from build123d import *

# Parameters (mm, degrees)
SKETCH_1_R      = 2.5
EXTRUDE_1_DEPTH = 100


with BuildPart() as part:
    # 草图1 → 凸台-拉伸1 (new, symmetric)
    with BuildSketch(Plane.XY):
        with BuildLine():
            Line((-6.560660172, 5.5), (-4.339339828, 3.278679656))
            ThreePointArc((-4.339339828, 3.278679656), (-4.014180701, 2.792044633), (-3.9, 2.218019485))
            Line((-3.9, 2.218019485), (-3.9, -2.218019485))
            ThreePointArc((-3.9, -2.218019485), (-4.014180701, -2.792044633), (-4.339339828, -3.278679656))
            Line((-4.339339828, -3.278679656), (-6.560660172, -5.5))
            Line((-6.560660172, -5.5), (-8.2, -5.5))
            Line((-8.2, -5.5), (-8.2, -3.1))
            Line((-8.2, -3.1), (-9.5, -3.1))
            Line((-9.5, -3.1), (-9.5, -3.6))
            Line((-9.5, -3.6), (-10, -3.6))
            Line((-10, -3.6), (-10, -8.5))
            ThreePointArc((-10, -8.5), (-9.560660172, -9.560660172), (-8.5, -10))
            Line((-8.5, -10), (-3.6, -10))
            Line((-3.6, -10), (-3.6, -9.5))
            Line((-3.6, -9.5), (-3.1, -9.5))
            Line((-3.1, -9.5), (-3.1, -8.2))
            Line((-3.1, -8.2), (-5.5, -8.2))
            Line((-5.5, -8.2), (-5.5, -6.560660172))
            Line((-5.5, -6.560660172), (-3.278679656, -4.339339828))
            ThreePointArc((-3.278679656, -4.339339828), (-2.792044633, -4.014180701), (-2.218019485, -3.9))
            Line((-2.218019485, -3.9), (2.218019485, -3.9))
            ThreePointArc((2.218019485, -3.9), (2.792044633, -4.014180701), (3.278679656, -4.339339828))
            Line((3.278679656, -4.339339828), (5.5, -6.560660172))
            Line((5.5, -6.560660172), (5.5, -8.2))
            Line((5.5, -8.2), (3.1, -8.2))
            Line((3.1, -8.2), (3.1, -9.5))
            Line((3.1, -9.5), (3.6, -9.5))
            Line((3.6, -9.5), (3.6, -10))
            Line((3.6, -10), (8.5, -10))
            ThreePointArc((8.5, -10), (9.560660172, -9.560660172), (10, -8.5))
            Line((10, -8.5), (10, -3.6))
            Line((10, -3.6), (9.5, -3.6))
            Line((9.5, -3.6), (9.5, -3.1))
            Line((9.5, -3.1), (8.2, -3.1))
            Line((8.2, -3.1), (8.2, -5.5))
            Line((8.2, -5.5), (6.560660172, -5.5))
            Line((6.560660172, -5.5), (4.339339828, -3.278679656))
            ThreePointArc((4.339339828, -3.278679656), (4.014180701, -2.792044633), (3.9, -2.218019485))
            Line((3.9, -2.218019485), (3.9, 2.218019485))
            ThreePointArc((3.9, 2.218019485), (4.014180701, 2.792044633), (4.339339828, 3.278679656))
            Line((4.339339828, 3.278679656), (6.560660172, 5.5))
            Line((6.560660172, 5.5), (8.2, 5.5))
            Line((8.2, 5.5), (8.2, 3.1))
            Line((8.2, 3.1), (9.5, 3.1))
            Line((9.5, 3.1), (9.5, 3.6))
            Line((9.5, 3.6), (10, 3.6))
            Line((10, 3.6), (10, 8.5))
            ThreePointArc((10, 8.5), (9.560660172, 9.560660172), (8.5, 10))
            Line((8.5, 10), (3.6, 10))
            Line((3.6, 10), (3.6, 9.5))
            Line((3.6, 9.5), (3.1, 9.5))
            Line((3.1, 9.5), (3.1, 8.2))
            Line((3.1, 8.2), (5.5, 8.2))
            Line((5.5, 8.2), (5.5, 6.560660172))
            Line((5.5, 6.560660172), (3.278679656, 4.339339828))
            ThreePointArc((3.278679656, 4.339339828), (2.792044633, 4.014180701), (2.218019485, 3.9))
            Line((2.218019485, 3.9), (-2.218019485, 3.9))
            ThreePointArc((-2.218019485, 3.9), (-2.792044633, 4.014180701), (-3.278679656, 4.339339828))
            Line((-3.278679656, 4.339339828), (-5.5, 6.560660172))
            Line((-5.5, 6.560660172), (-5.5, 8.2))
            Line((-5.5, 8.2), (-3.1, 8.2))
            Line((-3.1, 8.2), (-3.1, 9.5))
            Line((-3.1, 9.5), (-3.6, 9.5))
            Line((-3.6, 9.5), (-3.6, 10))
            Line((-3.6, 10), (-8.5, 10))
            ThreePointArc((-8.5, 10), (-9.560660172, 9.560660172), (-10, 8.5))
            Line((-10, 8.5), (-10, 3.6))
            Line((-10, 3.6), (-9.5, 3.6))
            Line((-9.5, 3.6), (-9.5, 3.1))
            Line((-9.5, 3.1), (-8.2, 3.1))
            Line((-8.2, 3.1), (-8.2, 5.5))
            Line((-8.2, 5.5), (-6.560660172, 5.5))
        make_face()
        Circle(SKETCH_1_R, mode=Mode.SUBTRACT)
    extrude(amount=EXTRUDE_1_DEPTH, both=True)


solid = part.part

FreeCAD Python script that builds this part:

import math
import FreeCAD as App
import Part
import Sketcher
Q = App.Units.Quantity

doc = App.newDocument("Part")
body = doc.addObject("PartDesign::Body", "Body")

sketch1 = body.newObject("Sketcher::SketchObject", "Sketch")
sketch1.AttachmentSupport = (doc.getObject("XY_Plane"), [""])
sketch1.MapMode = "FlatFace"
sketch1.addGeometry([
    Part.LineSegment(App.Vector(-6.6, 5.5, 0), App.Vector(-4.3, 3.3, 0)),
    Part.ArcOfCircle(Part.Circle(App.Vector(-5.4, 2.2, 0), App.Vector(0, 0, 1), 1.5), math.radians(0), math.radians(45)),
    Part.LineSegment(App.Vector(-3.9, 2.2, 0), App.Vector(-3.9, -2.2, 0)),
    Part.ArcOfCircle(Part.Circle(App.Vector(-5.4, -2.2, 0), App.Vector(0, 0, 1), 1.5), math.radians(-45), math.radians(0)),
    Part.LineSegment(App.Vector(-4.3, -3.3, 0), App.Vector(-6.6, -5.5, 0)),
    Part.LineSegment(App.Vector(-6.6, -5.5, 0), App.Vector(-8.2, -5.5, 0)),
    Part.LineSegment(App.Vector(-8.2, -5.5, 0), App.Vector(-8.2, -3.1, 0)),
    Part.LineSegment(App.Vector(-8.2, -3.1, 0), App.Vector(-9.5, -3.1, 0)),
    Part.LineSegment(App.Vector(-9.5, -3.1, 0), App.Vector(-9.5, -3.6, 0)),
    Part.LineSegment(App.Vector(-9.5, -3.6, 0), App.Vector(-10, -3.6, 0)),
    Part.LineSegment(App.Vector(-10, -3.6, 0), App.Vector(-10, -8.5, 0)),
    Part.ArcOfCircle(Part.Circle(App.Vector(-8.5, -8.5, 0), App.Vector(0, 0, 1), 1.5), math.radians(180), math.radians(270)),
    Part.LineSegment(App.Vector(-8.5, -10, 0), App.Vector(-3.6, -10, 0)),
    Part.LineSegment(App.Vector(-3.6, -10, 0), App.Vector(-3.6, -9.5, 0)),
    Part.LineSegment(App.Vector(-3.6, -9.5, 0), App.Vector(-3.1, -9.5, 0)),
    Part.LineSegment(App.Vector(-3.1, -9.5, 0), App.Vector(-3.1, -8.2, 0)),
    Part.LineSegment(App.Vector(-3.1, -8.2, 0), App.Vector(-5.5, -8.2, 0)),
    Part.LineSegment(App.Vector(-5.5, -8.2, 0), App.Vector(-5.5, -6.6, 0)),
    Part.LineSegment(App.Vector(-5.5, -6.6, 0), App.Vector(-3.3, -4.3, 0)),
    Part.ArcOfCircle(Part.Circle(App.Vector(-2.2, -5.4, 0), App.Vector(0, 0, 1), 1.5), math.radians(90), math.radians(135)),
    Part.LineSegment(App.Vector(-2.2, -3.9, 0), App.Vector(2.2, -3.9, 0)),
    Part.ArcOfCircle(Part.Circle(App.Vector(2.2, -5.4, 0), App.Vector(0, 0, 1), 1.5), math.radians(45), math.radians(90)),
    Part.LineSegment(App.Vector(3.3, -4.3, 0), App.Vector(5.5, -6.6, 0)),
    Part.LineSegment(App.Vector(5.5, -6.6, 0), App.Vector(5.5, -8.2, 0)),
    Part.LineSegment(App.Vector(5.5, -8.2, 0), App.Vector(3.1, -8.2, 0)),
    Part.LineSegment(App.Vector(3.1, -8.2, 0), App.Vector(3.1, -9.5, 0)),
    Part.LineSegment(App.Vector(3.1, -9.5, 0), App.Vector(3.6, -9.5, 0)),
    Part.LineSegment(App.Vector(3.6, -9.5, 0), App.Vector(3.6, -10, 0)),
    Part.LineSegment(App.Vector(3.6, -10, 0), App.Vector(8.5, -10, 0)),
    Part.ArcOfCircle(Part.Circle(App.Vector(8.5, -8.5, 0), App.Vector(0, 0, 1), 1.5), math.radians(-90), math.radians(0)),
    Part.LineSegment(App.Vector(10, -8.5, 0), App.Vector(10, -3.6, 0)),
    Part.LineSegment(App.Vector(10, -3.6, 0), App.Vector(9.5, -3.6, 0)),
    Part.LineSegment(App.Vector(9.5, -3.6, 0), App.Vector(9.5, -3.1, 0)),
    Part.LineSegment(App.Vector(9.5, -3.1, 0), App.Vector(8.2, -3.1, 0)),
    Part.LineSegment(App.Vector(8.2, -3.1, 0), App.Vector(8.2, -5.5, 0)),
    Part.LineSegment(App.Vector(8.2, -5.5, 0), App.Vector(6.6, -5.5, 0)),
    Part.LineSegment(App.Vector(6.6, -5.5, 0), App.Vector(4.3, -3.3, 0)),
    Part.ArcOfCircle(Part.Circle(App.Vector(5.4, -2.2, 0), App.Vector(0, 0, 1), 1.5), math.radians(180), math.radians(225)),
    Part.LineSegment(App.Vector(3.9, -2.2, 0), App.Vector(3.9, 2.2, 0)),
    Part.ArcOfCircle(Part.Circle(App.Vector(5.4, 2.2, 0), App.Vector(0, 0, 1), 1.5), math.radians(135), math.radians(180)),
    Part.LineSegment(App.Vector(4.3, 3.3, 0), App.Vector(6.6, 5.5, 0)),
    Part.LineSegment(App.Vector(6.6, 5.5, 0), App.Vector(8.2, 5.5, 0)),
    Part.LineSegment(App.Vector(8.2, 5.5, 0), App.Vector(8.2, 3.1, 0)),
    Part.LineSegment(App.Vector(8.2, 3.1, 0), App.Vector(9.5, 3.1, 0)),
    Part.LineSegment(App.Vector(9.5, 3.1, 0), App.Vector(9.5, 3.6, 0)),
    Part.LineSegment(App.Vector(9.5, 3.6, 0), App.Vector(10, 3.6, 0)),
    Part.LineSegment(App.Vector(10, 3.6, 0), App.Vector(10, 8.5, 0)),
    Part.ArcOfCircle(Part.Circle(App.Vector(8.5, 8.5, 0), App.Vector(0, 0, 1), 1.5), math.radians(0), math.radians(90)),
    Part.LineSegment(App.Vector(8.5, 10, 0), App.Vector(3.6, 10, 0)),
    Part.LineSegment(App.Vector(3.6, 10, 0), App.Vector(3.6, 9.5, 0)),
    Part.LineSegment(App.Vector(3.6, 9.5, 0), App.Vector(3.1, 9.5, 0)),
    Part.LineSegment(App.Vector(3.1, 9.5, 0), App.Vector(3.1, 8.2, 0)),
    Part.LineSegment(App.Vector(3.1, 8.2, 0), App.Vector(5.5, 8.2, 0)),
    Part.LineSegment(App.Vector(5.5, 8.2, 0), App.Vector(5.5, 6.6, 0)),
    Part.LineSegment(App.Vector(5.5, 6.6, 0), App.Vector(3.3, 4.3, 0)),
    Part.ArcOfCircle(Part.Circle(App.Vector(2.2, 5.4, 0), App.Vector(0, 0, 1), 1.5), math.radians(-90), math.radians(-45)),
    Part.LineSegment(App.Vector(2.2, 3.9, 0), App.Vector(-2.2, 3.9, 0)),
    Part.ArcOfCircle(Part.Circle(App.Vector(-2.2, 5.4, 0), App.Vector(0, 0, 1), 1.5), math.radians(-135), math.radians(-90)),
    Part.LineSegment(App.Vector(-3.3, 4.3, 0), App.Vector(-5.5, 6.6, 0)),
    Part.LineSegment(App.Vector(-5.5, 6.6, 0), App.Vector(-5.5, 8.2, 0)),
    Part.LineSegment(App.Vector(-5.5, 8.2, 0), App.Vector(-3.1, 8.2, 0)),
    Part.LineSegment(App.Vector(-3.1, 8.2, 0), App.Vector(-3.1, 9.5, 0)),
    Part.LineSegment(App.Vector(-3.1, 9.5, 0), App.Vector(-3.6, 9.5, 0)),
    Part.LineSegment(App.Vector(-3.6, 9.5, 0), App.Vector(-3.6, 10, 0)),
    Part.LineSegment(App.Vector(-3.6, 10, 0), App.Vector(-8.5, 10, 0)),
    Part.ArcOfCircle(Part.Circle(App.Vector(-8.5, 8.5, 0), App.Vector(0, 0, 1), 1.5), math.radians(90), math.radians(180)),
    Part.LineSegment(App.Vector(-10, 8.5, 0), App.Vector(-10, 3.6, 0)),
    Part.LineSegment(App.Vector(-10, 3.6, 0), App.Vector(-9.5, 3.6, 0)),
    Part.LineSegment(App.Vector(-9.5, 3.6, 0), App.Vector(-9.5, 3.1, 0)),
    Part.LineSegment(App.Vector(-9.5, 3.1, 0), App.Vector(-8.2, 3.1, 0)),
    Part.LineSegment(App.Vector(-8.2, 3.1, 0), App.Vector(-8.2, 5.5, 0)),
    Part.LineSegment(App.Vector(-8.2, 5.5, 0), App.Vector(-6.6, 5.5, 0)),
    Part.Circle(App.Vector(0, 0, 0), App.Vector(0, 0, 1), 2.5),
], False)
sketch1.addConstraint([
    Sketcher.Constraint("Tangent", 0, 2, 1, 2),
    Sketcher.Constraint("Tangent", 1, 1, 2, 1),
    Sketcher.Constraint("Tangent", 2, 2, 3, 2),
    Sketcher.Constraint("Tangent", 3, 1, 4, 1),
    Sketcher.Constraint("Coincident", 4, 2, 5, 1),
    Sketcher.Constraint("Coincident", 5, 2, 6, 1),
    Sketcher.Constraint("Coincident", 6, 2, 7, 1),
    Sketcher.Constraint("Coincident", 7, 2, 8, 1),
    Sketcher.Constraint("Coincident", 8, 2, 9, 1),
    Sketcher.Constraint("Coincident", 9, 2, 10, 1),
    Sketcher.Constraint("Tangent", 10, 2, 11, 1),
    Sketcher.Constraint("Tangent", 11, 2, 12, 1),
    Sketcher.Constraint("Coincident", 12, 2, 13, 1),
    Sketcher.Constraint("Coincident", 13, 2, 14, 1),
    Sketcher.Constraint("Coincident", 14, 2, 15, 1),
    Sketcher.Constraint("Coincident", 15, 2, 16, 1),
    Sketcher.Constraint("Coincident", 16, 2, 17, 1),
    Sketcher.Constraint("Coincident", 17, 2, 18, 1),
    Sketcher.Constraint("Tangent", 18, 2, 19, 2),
    Sketcher.Constraint("Tangent", 19, 1, 20, 1),
    Sketcher.Constraint("Tangent", 20, 2, 21, 2),
    Sketcher.Constraint("Tangent", 21, 1, 22, 1),
    Sketcher.Constraint("Coincident", 22, 2, 23, 1),
    Sketcher.Constraint("Coincident", 23, 2, 24, 1),
    Sketcher.Constraint("Coincident", 24, 2, 25, 1),
    Sketcher.Constraint("Coincident", 25, 2, 26, 1),
    Sketcher.Constraint("Coincident", 26, 2, 27, 1),
    Sketcher.Constraint("Coincident", 27, 2, 28, 1),
    Sketcher.Constraint("Tangent", 28, 2, 29, 1),
    Sketcher.Constraint("Tangent", 29, 2, 30, 1),
    Sketcher.Constraint("Coincident", 30, 2, 31, 1),
    Sketcher.Constraint("Coincident", 31, 2, 32, 1),
    Sketcher.Constraint("Coincident", 32, 2, 33, 1),
    Sketcher.Constraint("Coincident", 33, 2, 34, 1),
    Sketcher.Constraint("Coincident", 34, 2, 35, 1),
    Sketcher.Constraint("Coincident", 35, 2, 36, 1),
    Sketcher.Constraint("Tangent", 36, 2, 37, 2),
    Sketcher.Constraint("Tangent", 37, 1, 38, 1),
    Sketcher.Constraint("Tangent", 38, 2, 39, 2),
    Sketcher.Constraint("Tangent", 39, 1, 40, 1),
    Sketcher.Constraint("Coincident", 40, 2, 41, 1),
    Sketcher.Constraint("Coincident", 41, 2, 42, 1),
    Sketcher.Constraint("Coincident", 42, 2, 43, 1),
    Sketcher.Constraint("Coincident", 43, 2, 44, 1),
    Sketcher.Constraint("Coincident", 44, 2, 45, 1),
    Sketcher.Constraint("Coincident", 45, 2, 46, 1),
    Sketcher.Constraint("Tangent", 46, 2, 47, 1),
    Sketcher.Constraint("Tangent", 47, 2, 48, 1),
    Sketcher.Constraint("Coincident", 48, 2, 49, 1),
    Sketcher.Constraint("Coincident", 49, 2, 50, 1),
    Sketcher.Constraint("Coincident", 50, 2, 51, 1),
    Sketcher.Constraint("Coincident", 51, 2, 52, 1),
    Sketcher.Constraint("Coincident", 52, 2, 53, 1),
    Sketcher.Constraint("Coincident", 53, 2, 54, 1),
    Sketcher.Constraint("Tangent", 54, 2, 55, 2),
    Sketcher.Constraint("Tangent", 55, 1, 56, 1),
    Sketcher.Constraint("Tangent", 56, 2, 57, 2),
    Sketcher.Constraint("Tangent", 57, 1, 58, 1),
    Sketcher.Constraint("Coincident", 58, 2, 59, 1),
    Sketcher.Constraint("Coincident", 59, 2, 60, 1),
    Sketcher.Constraint("Coincident", 60, 2, 61, 1),
    Sketcher.Constraint("Coincident", 61, 2, 62, 1),
    Sketcher.Constraint("Coincident", 62, 2, 63, 1),
    Sketcher.Constraint("Coincident", 63, 2, 64, 1),
    Sketcher.Constraint("Tangent", 64, 2, 65, 1),
    Sketcher.Constraint("Tangent", 65, 2, 66, 1),
    Sketcher.Constraint("Coincident", 66, 2, 67, 1),
    Sketcher.Constraint("Coincident", 67, 2, 68, 1),
    Sketcher.Constraint("Coincident", 68, 2, 69, 1),
    Sketcher.Constraint("Coincident", 69, 2, 70, 1),
    Sketcher.Constraint("Coincident", 70, 2, 71, 1),
    Sketcher.Constraint("Coincident", 71, 2, 0, 1),
    Sketcher.Constraint("Vertical", 2),
    Sketcher.Constraint("Horizontal", 5),
    Sketcher.Constraint("Vertical", 6),
    Sketcher.Constraint("Horizontal", 7),
    Sketcher.Constraint("Vertical", 8),
    Sketcher.Constraint("Horizontal", 9),
    Sketcher.Constraint("Vertical", 10),
    Sketcher.Constraint("Horizontal", 12),
    Sketcher.Constraint("Vertical", 13),
    Sketcher.Constraint("Horizontal", 14),
    Sketcher.Constraint("Vertical", 15),
    Sketcher.Constraint("Horizontal", 16),
    Sketcher.Constraint("Vertical", 17),
    Sketcher.Constraint("Horizontal", 20),
    Sketcher.Constraint("Vertical", 23),
    Sketcher.Constraint("Horizontal", 24),
    Sketcher.Constraint("Vertical", 25),
    Sketcher.Constraint("Horizontal", 26),
    Sketcher.Constraint("Vertical", 27),
    Sketcher.Constraint("Horizontal", 28),
    Sketcher.Constraint("Vertical", 30),
    Sketcher.Constraint("Horizontal", 31),
    Sketcher.Constraint("Vertical", 32),
    Sketcher.Constraint("Horizontal", 33),
    Sketcher.Constraint("Vertical", 34),
    Sketcher.Constraint("Horizontal", 35),
    Sketcher.Constraint("Vertical", 38),
    Sketcher.Constraint("Horizontal", 41),
    Sketcher.Constraint("Vertical", 42),
    Sketcher.Constraint("Horizontal", 43),
    Sketcher.Constraint("Vertical", 44),
    Sketcher.Constraint("Horizontal", 45),
    Sketcher.Constraint("Vertical", 46),
    Sketcher.Constraint("Horizontal", 48),
    Sketcher.Constraint("Vertical", 49),
    Sketcher.Constraint("Horizontal", 50),
    Sketcher.Constraint("Vertical", 51),
    Sketcher.Constraint("Horizontal", 52),
    Sketcher.Constraint("Vertical", 53),
    Sketcher.Constraint("Horizontal", 56),
    Sketcher.Constraint("Vertical", 59),
    Sketcher.Constraint("Horizontal", 60),
    Sketcher.Constraint("Vertical", 61),
    Sketcher.Constraint("Horizontal", 62),
    Sketcher.Constraint("Vertical", 63),
    Sketcher.Constraint("Horizontal", 64),
    Sketcher.Constraint("Vertical", 66),
    Sketcher.Constraint("Horizontal", 67),
    Sketcher.Constraint("Vertical", 68),
    Sketcher.Constraint("Horizontal", 69),
    Sketcher.Constraint("Vertical", 70),
    Sketcher.Constraint("Horizontal", 71),
    Sketcher.Constraint("Coincident", 72, 3, -1, 1),
    Sketcher.Constraint("Equal", 1, 3),
    Sketcher.Constraint("Equal", 3, 11),
    Sketcher.Constraint("Equal", 11, 19),
    Sketcher.Constraint("Equal", 19, 21),
    Sketcher.Constraint("Equal", 21, 29),
    Sketcher.Constraint("Equal", 29, 37),
    Sketcher.Constraint("Equal", 37, 39),
    Sketcher.Constraint("Equal", 39, 47),
    Sketcher.Constraint("Equal", 47, 55),
    Sketcher.Constraint("Equal", 55, 57),
    Sketcher.Constraint("Equal", 57, 65),
    Sketcher.Constraint("Symmetric", 1, 3, 37, 3, -1, 1),
    Sketcher.Constraint("Symmetric", 11, 3, 47, 3, -1, 1),
    Sketcher.Constraint("Symmetric", 19, 3, 55, 3, -1, 1),
    Sketcher.Constraint("Symmetric", 29, 3, 65, 3, -1, 1),
    Sketcher.Constraint("Symmetric", 3, 1, 39, 1, -1, 1),
    Sketcher.Constraint("Symmetric", 5, 2, 41, 2, -1, 1),
    Sketcher.Constraint("Symmetric", 7, 2, 43, 2, -1, 1),
    Sketcher.Constraint("Symmetric", 13, 2, 49, 2, -1, 1),
    Sketcher.Constraint("Symmetric", 15, 2, 51, 2, -1, 1),
    Sketcher.Constraint("Symmetric", 17, 2, 53, 2, -1, 1),
    Sketcher.Constraint("Symmetric", 21, 1, 57, 1, -1, 1),
    Sketcher.Constraint("Symmetric", 23, 2, 59, 2, -1, 1),
    Sketcher.Constraint("Symmetric", 25, 2, 61, 2, -1, 1),
    Sketcher.Constraint("Symmetric", 31, 2, 67, 2, -1, 1),
    Sketcher.Constraint("Symmetric", 33, 2, 69, 2, -1, 1),
    Sketcher.Constraint("Symmetric", 35, 2, 71, 2, -1, 1),
    Sketcher.Constraint("Symmetric", 11, 3, 29, 3, -2),
    Sketcher.Constraint("Symmetric", 18, 2, 21, 1, -2),
    Sketcher.Constraint("Symmetric", 16, 2, 23, 2, -2),
    Sketcher.Constraint("Symmetric", 14, 2, 25, 2, -2),
    Sketcher.Constraint("Symmetric", 8, 2, 31, 2, -2),
    Sketcher.Constraint("Symmetric", 6, 2, 33, 2, -2),
    Sketcher.Constraint("Symmetric", 4, 2, 35, 2, -2),
    Sketcher.Constraint("Perpendicular", 0, 4),
    Sketcher.Constraint("Parallel", 4, 18),
    Sketcher.Constraint("Perpendicular", 18, 22),
    Sketcher.Constraint("Horizontal", 45, 2, 66, 2),
    Sketcher.Constraint("Vertical", 27, 2, 48, 2),
    Sketcher.Constraint("Vertical", 13, 2, 62, 2),
    Sketcher.Constraint("Equal", 9, 14),
    Sketcher.Constraint("Equal", 56, 2),
    Sketcher.Constraint("Equal", 60, 6),
    Sketcher.Constraint("Equal", 67, 8),
    Sketcher.Constraint("Equal", 64, 10),
    Sketcher.Constraint("Equal", 8, 13),
    Sketcher.Constraint("Equal", 69, 15),
    Sketcher.Constraint("Equal", 71, 17),
    Sketcher.Constraint("Equal", 4, 18),
    Sketcher.Constraint("Diameter", 72, Q("5 mm")),
    Sketcher.Constraint("Radius", 1, Q("1.5 mm")),
    Sketcher.Constraint("DistanceX", 7, 2, 7, 1, Q("1.3 mm")),
    Sketcher.Constraint("DistanceX", 9, 2, 9, 1, Q("0.5 mm")),
    Sketcher.Constraint("DistanceX", 12, 1, 12, 2, Q("4.9 mm")),
    Sketcher.Constraint("DistanceX", 16, 2, 16, 1, Q("2.4 mm")),
    Sketcher.Constraint("DistanceX", 9, 2, -1, 1, Q("10 mm")),
    Sketcher.Constraint("DistanceX", 1, 3, -1, 1, Q("5.4 mm")),
    Sketcher.Constraint("DistanceX", 5, 2, 5, 1, Q("1.63934 mm")),
])
pad1 = body.newObject("PartDesign::Pad", "Pad")
pad1.Profile = sketch1
pad1.Length = 200
pad1.Midplane = True

doc.recompute()
